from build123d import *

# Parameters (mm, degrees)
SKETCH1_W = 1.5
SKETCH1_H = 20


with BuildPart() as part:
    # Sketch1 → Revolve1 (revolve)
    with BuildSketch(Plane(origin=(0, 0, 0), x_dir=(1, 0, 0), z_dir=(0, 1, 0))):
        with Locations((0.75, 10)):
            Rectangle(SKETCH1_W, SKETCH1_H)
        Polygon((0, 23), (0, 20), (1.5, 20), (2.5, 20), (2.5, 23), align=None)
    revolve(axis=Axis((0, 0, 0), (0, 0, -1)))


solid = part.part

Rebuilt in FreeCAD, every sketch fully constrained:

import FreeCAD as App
import Part
import Sketcher

V = App.Vector


def add_polygon(sketch, points):
    """Adds a closed chain of lines whose ends are joined by coincident constraints."""
    first, n = sketch.GeometryCount, len(points)
    for a, b in zip(points, points[1:] + points[:1]):
        sketch.addGeometry(Part.LineSegment(App.Vector(*a, 0), App.Vector(*b, 0)), False)
    for i in range(n):
        sketch.addConstraint(Sketcher.Constraint("Coincident", first + i, 2, first + (i + 1) % n, 1))

doc = App.newDocument("Part")
body = doc.addObject("PartDesign::Body", "Body")

# Sketch on XZ plane
sketch1 = doc.addObject("Sketcher::SketchObject", "Sketch")
body.addObject(sketch1)
sketch1.AttachmentSupport = (doc.XZ_Plane, [""])
sketch1.MapMode = "FlatFace"
add_polygon(sketch1, [(0, 0), (1.5, 0), (1.5, -20), (2.5, -20), (2.5, -23), (0, -23)])  # lines 0-5
sketch1.addConstraint([
    Sketcher.Constraint("Horizontal", 0),
    Sketcher.Constraint("Vertical", 1),
    Sketcher.Constraint("Horizontal", 2),
    Sketcher.Constraint("Vertical", 3),
    Sketcher.Constraint("Horizontal", 4),
    Sketcher.Constraint("Vertical", 5),
    Sketcher.Constraint("Coincident", 5, 2, -1, 1),
    Sketcher.Constraint("DistanceX", 2, 1, 2, 2, 1.0),
    Sketcher.Constraint("DistanceY", 1, 2, 1, 1, 20.0),
    Sketcher.Constraint("DistanceY", 3, 2, 3, 1, 3.0),
    Sketcher.Constraint("DistanceX", 0, 1, 0, 2, 1.5),
])
revolution = doc.addObject("PartDesign::Revolution", "Revolution")
body.addObject(revolution)
revolution.Profile = sketch1
revolution.ReferenceAxis = (sketch1, ["V_Axis"])
revolution.Angle = 360

doc.recompute()
